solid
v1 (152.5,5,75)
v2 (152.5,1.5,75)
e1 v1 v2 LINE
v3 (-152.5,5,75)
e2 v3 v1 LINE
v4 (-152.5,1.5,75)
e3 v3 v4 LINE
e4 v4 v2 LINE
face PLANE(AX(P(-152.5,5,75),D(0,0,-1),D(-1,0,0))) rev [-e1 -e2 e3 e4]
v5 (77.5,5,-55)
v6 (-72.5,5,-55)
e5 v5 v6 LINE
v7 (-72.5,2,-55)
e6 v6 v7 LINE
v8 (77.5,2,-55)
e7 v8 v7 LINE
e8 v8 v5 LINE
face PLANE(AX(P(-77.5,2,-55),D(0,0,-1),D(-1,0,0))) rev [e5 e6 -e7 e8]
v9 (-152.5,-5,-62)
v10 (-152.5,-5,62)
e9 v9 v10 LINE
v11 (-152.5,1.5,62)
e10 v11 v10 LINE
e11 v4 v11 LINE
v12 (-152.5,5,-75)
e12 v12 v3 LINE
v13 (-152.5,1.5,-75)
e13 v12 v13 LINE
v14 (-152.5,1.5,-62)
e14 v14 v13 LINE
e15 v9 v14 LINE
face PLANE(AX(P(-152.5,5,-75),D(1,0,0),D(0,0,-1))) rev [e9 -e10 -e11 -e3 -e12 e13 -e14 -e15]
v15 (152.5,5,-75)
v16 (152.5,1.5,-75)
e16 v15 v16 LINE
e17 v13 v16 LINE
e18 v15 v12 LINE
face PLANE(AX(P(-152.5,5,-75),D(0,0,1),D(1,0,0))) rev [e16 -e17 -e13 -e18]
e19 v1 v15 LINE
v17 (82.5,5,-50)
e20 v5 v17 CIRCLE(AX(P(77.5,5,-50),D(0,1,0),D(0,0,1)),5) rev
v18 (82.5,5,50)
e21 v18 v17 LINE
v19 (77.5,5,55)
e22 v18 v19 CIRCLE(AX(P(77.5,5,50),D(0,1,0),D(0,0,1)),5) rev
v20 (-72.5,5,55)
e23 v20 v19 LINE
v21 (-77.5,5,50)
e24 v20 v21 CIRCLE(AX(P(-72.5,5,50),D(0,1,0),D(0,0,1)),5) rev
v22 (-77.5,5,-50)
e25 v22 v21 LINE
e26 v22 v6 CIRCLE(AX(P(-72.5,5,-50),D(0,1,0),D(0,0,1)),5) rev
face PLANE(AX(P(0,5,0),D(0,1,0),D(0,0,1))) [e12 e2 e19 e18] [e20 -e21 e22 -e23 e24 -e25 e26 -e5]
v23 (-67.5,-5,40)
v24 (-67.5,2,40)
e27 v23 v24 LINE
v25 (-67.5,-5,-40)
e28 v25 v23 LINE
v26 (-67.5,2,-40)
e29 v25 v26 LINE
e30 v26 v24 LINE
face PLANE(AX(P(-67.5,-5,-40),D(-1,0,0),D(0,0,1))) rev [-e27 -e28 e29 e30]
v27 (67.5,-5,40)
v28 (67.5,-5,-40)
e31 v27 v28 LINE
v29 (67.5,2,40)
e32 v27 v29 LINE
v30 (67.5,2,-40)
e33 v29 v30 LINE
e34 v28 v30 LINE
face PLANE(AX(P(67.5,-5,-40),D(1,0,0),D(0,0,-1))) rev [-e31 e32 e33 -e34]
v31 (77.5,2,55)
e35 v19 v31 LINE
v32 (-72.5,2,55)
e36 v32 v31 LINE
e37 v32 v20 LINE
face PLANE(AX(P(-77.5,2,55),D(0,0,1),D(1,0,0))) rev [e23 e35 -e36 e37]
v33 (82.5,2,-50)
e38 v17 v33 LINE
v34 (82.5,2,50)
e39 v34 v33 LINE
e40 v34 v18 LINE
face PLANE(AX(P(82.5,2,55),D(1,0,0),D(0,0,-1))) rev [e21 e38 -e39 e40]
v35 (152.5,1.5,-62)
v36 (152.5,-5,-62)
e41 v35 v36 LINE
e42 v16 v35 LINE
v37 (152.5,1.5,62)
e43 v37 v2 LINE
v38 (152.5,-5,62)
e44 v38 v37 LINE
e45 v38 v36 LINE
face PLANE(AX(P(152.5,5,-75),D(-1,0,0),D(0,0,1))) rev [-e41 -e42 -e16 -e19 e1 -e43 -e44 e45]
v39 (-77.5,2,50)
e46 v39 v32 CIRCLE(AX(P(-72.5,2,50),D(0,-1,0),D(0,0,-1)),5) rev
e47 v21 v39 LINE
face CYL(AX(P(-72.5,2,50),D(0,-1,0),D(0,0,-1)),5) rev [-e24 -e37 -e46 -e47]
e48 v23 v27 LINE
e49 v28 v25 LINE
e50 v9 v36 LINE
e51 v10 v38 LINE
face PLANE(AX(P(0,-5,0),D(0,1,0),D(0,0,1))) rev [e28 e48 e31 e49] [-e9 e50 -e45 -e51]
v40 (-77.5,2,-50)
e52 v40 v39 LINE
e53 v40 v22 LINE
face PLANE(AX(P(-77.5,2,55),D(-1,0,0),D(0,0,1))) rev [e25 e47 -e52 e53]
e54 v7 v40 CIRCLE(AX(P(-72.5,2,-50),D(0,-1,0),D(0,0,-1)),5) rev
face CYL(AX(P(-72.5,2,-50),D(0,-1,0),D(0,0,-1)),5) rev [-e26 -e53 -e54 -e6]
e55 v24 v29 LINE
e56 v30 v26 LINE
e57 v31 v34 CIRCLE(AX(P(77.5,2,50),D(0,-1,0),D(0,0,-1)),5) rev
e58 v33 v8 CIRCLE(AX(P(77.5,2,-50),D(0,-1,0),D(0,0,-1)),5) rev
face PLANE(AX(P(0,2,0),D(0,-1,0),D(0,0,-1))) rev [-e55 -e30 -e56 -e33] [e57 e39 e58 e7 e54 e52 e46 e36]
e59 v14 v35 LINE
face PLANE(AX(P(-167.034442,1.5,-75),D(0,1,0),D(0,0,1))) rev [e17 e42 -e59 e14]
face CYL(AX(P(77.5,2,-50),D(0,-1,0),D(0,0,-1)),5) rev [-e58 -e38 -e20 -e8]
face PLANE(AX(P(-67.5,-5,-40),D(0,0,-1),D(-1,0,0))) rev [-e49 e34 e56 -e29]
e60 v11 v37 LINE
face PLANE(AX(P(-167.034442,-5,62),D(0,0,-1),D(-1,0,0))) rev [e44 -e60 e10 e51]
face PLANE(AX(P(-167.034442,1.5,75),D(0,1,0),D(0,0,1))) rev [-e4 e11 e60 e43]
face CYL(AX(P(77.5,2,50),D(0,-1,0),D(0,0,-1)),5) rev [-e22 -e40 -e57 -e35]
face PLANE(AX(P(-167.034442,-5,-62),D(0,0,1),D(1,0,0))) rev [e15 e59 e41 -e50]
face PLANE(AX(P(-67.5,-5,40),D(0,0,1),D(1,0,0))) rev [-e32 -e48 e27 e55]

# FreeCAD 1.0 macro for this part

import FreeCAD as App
import Part
import Sketcher

V = App.Vector
Q = App.Units.Quantity


def edges_at(feature, points):
    """Names of the edges that pass closest to the given points."""
    edges = feature.Shape.Edges
    near = lambda p: min(range(len(edges)), key=lambda i: edges[i].distToShape(Part.Vertex(*p))[0])
    return sorted({f"Edge{near(p) + 1}" for p in points})


def add_polygon(sketch, points):
    """Adds a closed chain of lines whose ends are joined by coincident constraints."""
    first, n = sketch.GeometryCount, len(points)
    for a, b in zip(points, points[1:] + points[:1]):
        sketch.addGeometry(Part.LineSegment(App.Vector(*a, 0), App.Vector(*b, 0)), False)
    for i in range(n):
        sketch.addConstraint(Sketcher.Constraint("Coincident", first + i, 2, first + (i + 1) % n, 1))

doc = App.newDocument("Part")
body = doc.addObject("PartDesign::Body", "Body")

sketch1 = doc.addObject("Sketcher::SketchObject", "Sketch")
body.addObject(sketch1)
sketch1.AttachmentSupport = (doc.XZ_Plane, [""])
sketch1.MapMode = "FlatFace"
add_polygon(sketch1, [(-152, -75), (-152, 75), (152, 75), (152, -75)])
sketch1.addConstraint([
    Sketcher.Constraint("Vertical", 0),
    Sketcher.Constraint("Horizontal", 1),
    Sketcher.Constraint("Vertical", 2),
    Sketcher.Constraint("Horizontal", 3),
    Sketcher.Constraint("Symmetric", 0, 2, 2, 2, -1, 1),
    Sketcher.Constraint("DistanceX", 1, 1, 1, 2, Q("305 mm")),
    Sketcher.Constraint("DistanceY", 0, 1, 0, 2, Q("150 mm")),
])
pad1 = doc.addObject("PartDesign::Pad", "Pad")
body.addObject(pad1)
pad1.Profile = sketch1
pad1.Length = 10
pad1.Midplane = True

sketch2 = doc.addObject("Sketcher::SketchObject", "Sketch001")
body.addObject(sketch2)
sketch2.AttachmentSupport = (doc.YZ_Plane, [""])
sketch2.MapMode = "FlatFace"
sketch2.AttachmentOffset = App.Placement(V(0, 0, 152.5), App.Rotation())
add_polygon(sketch2, [(2, 75), (-5, 75), (-5, 62), (2, 62)])
add_polygon(sketch2, [(2, -62), (-5, -62), (-5, -75), (2, -75)])
sketch2.addConstraint([
    Sketcher.Constraint("Horizontal", 0),
    Sketcher.Constraint("Vertical", 1),
    Sketcher.Constraint("Horizontal", 2),
    Sketcher.Constraint("Vertical", 3),
    Sketcher.Constraint("Horizontal", 4),
    Sketcher.Constraint("Vertical", 5),
    Sketcher.Constraint("Horizontal", 6),
    Sketcher.Constraint("Vertical", 7),
    Sketcher.Constraint("Symmetric", 1, 2, 4, 2, -1),
    Sketcher.Constraint("Symmetric", 3, 2, 6, 2, -1),
    Sketcher.Constraint("DistanceY", 1, 2, 1, 1, Q("13 mm")),
    Sketcher.Constraint("DistanceX", 0, 2, 0, 1, Q("6.5 mm")),
    Sketcher.Constraint("DistanceX", 0, 2, -1, 1, Q("5 mm")),
    Sketcher.Constraint("DistanceY", -1, 1, 0, 2, Q("75 mm")),
])
pocket1 = doc.addObject("PartDesign::Pocket", "Pocket")
body.addObject(pocket1)
pocket1.Profile = sketch2
pocket1.Length = 305

sketch3 = doc.addObject("Sketcher::SketchObject", "Sketch002")
body.addObject(sketch3)
sketch3.AttachmentSupport = (doc.XZ_Plane, [""])
sketch3.MapMode = "FlatFace"
sketch3.AttachmentOffset = App.Placement(V(0, 0, -5), App.Rotation())
add_polygon(sketch3, [(-78, -55), (-78, 55), (82, 55), (82, -55)])
sketch3.addConstraint([
    Sketcher.Constraint("Vertical", 0),
    Sketcher.Constraint("Horizontal", 1),
    Sketcher.Constraint("Vertical", 2),
    Sketcher.Constraint("Horizontal", 3),
    Sketcher.Constraint("DistanceX", 1, 1, 1, 2, Q("160 mm")),
    Sketcher.Constraint("DistanceY", 0, 1, 0, 2, Q("110 mm")),
    Sketcher.Constraint("DistanceY", -1, 1, 0, 2, Q("55 mm")),
    Sketcher.Constraint("DistanceX", 0, 2, -1, 1, Q("77.5 mm")),
])
pocket2 = doc.addObject("PartDesign::Pocket", "Pocket001")
body.addObject(pocket2)
pocket2.Profile = sketch3
pocket2.Length = 3
pocket2.Reversed = True
doc.recompute()

fillet = doc.addObject("PartDesign::Fillet", "Fillet")
body.addObject(fillet)
fillet.Base = (pocket2, edges_at(pocket2, [
    (-77.5, 3.5, 55),
    (-77.5, 3.5, -55),
    (82.5, 3.5, -55),
    (82.5, 3.5, 55),
]))
fillet.Radius = 5

sketch4 = doc.addObject("Sketcher::SketchObject", "Sketch003")
body.addObject(sketch4)
sketch4.AttachmentSupport = (doc.XZ_Plane, [""])
sketch4.MapMode = "FlatFace"
sketch4.AttachmentOffset = App.Placement(V(0, 0, -2), App.Rotation())
add_polygon(sketch4, [(-68, -40), (-68, 40), (68, 40), (68, -40)])
sketch4.addConstraint([
    Sketcher.Constraint("Vertical", 0),
    Sketcher.Constraint("Horizontal", 1),
    Sketcher.Constraint("Vertical", 2),
    Sketcher.Constraint("Horizontal", 3),
    Sketcher.Constraint("Symmetric", 0, 2, 2, 2, -1, 1),
    Sketcher.Constraint("DistanceX", 1, 1, 1, 2, Q("135 mm")),
    Sketcher.Constraint("DistanceY", 0, 1, 0, 2, Q("80 mm")),
])
pocket3 = doc.addObject("PartDesign::Pocket", "Pocket002")
body.addObject(pocket3)
pocket3.Profile = sketch4
pocket3.Type = "ThroughAll"
pocket3.Reversed = True

doc.recompute()
